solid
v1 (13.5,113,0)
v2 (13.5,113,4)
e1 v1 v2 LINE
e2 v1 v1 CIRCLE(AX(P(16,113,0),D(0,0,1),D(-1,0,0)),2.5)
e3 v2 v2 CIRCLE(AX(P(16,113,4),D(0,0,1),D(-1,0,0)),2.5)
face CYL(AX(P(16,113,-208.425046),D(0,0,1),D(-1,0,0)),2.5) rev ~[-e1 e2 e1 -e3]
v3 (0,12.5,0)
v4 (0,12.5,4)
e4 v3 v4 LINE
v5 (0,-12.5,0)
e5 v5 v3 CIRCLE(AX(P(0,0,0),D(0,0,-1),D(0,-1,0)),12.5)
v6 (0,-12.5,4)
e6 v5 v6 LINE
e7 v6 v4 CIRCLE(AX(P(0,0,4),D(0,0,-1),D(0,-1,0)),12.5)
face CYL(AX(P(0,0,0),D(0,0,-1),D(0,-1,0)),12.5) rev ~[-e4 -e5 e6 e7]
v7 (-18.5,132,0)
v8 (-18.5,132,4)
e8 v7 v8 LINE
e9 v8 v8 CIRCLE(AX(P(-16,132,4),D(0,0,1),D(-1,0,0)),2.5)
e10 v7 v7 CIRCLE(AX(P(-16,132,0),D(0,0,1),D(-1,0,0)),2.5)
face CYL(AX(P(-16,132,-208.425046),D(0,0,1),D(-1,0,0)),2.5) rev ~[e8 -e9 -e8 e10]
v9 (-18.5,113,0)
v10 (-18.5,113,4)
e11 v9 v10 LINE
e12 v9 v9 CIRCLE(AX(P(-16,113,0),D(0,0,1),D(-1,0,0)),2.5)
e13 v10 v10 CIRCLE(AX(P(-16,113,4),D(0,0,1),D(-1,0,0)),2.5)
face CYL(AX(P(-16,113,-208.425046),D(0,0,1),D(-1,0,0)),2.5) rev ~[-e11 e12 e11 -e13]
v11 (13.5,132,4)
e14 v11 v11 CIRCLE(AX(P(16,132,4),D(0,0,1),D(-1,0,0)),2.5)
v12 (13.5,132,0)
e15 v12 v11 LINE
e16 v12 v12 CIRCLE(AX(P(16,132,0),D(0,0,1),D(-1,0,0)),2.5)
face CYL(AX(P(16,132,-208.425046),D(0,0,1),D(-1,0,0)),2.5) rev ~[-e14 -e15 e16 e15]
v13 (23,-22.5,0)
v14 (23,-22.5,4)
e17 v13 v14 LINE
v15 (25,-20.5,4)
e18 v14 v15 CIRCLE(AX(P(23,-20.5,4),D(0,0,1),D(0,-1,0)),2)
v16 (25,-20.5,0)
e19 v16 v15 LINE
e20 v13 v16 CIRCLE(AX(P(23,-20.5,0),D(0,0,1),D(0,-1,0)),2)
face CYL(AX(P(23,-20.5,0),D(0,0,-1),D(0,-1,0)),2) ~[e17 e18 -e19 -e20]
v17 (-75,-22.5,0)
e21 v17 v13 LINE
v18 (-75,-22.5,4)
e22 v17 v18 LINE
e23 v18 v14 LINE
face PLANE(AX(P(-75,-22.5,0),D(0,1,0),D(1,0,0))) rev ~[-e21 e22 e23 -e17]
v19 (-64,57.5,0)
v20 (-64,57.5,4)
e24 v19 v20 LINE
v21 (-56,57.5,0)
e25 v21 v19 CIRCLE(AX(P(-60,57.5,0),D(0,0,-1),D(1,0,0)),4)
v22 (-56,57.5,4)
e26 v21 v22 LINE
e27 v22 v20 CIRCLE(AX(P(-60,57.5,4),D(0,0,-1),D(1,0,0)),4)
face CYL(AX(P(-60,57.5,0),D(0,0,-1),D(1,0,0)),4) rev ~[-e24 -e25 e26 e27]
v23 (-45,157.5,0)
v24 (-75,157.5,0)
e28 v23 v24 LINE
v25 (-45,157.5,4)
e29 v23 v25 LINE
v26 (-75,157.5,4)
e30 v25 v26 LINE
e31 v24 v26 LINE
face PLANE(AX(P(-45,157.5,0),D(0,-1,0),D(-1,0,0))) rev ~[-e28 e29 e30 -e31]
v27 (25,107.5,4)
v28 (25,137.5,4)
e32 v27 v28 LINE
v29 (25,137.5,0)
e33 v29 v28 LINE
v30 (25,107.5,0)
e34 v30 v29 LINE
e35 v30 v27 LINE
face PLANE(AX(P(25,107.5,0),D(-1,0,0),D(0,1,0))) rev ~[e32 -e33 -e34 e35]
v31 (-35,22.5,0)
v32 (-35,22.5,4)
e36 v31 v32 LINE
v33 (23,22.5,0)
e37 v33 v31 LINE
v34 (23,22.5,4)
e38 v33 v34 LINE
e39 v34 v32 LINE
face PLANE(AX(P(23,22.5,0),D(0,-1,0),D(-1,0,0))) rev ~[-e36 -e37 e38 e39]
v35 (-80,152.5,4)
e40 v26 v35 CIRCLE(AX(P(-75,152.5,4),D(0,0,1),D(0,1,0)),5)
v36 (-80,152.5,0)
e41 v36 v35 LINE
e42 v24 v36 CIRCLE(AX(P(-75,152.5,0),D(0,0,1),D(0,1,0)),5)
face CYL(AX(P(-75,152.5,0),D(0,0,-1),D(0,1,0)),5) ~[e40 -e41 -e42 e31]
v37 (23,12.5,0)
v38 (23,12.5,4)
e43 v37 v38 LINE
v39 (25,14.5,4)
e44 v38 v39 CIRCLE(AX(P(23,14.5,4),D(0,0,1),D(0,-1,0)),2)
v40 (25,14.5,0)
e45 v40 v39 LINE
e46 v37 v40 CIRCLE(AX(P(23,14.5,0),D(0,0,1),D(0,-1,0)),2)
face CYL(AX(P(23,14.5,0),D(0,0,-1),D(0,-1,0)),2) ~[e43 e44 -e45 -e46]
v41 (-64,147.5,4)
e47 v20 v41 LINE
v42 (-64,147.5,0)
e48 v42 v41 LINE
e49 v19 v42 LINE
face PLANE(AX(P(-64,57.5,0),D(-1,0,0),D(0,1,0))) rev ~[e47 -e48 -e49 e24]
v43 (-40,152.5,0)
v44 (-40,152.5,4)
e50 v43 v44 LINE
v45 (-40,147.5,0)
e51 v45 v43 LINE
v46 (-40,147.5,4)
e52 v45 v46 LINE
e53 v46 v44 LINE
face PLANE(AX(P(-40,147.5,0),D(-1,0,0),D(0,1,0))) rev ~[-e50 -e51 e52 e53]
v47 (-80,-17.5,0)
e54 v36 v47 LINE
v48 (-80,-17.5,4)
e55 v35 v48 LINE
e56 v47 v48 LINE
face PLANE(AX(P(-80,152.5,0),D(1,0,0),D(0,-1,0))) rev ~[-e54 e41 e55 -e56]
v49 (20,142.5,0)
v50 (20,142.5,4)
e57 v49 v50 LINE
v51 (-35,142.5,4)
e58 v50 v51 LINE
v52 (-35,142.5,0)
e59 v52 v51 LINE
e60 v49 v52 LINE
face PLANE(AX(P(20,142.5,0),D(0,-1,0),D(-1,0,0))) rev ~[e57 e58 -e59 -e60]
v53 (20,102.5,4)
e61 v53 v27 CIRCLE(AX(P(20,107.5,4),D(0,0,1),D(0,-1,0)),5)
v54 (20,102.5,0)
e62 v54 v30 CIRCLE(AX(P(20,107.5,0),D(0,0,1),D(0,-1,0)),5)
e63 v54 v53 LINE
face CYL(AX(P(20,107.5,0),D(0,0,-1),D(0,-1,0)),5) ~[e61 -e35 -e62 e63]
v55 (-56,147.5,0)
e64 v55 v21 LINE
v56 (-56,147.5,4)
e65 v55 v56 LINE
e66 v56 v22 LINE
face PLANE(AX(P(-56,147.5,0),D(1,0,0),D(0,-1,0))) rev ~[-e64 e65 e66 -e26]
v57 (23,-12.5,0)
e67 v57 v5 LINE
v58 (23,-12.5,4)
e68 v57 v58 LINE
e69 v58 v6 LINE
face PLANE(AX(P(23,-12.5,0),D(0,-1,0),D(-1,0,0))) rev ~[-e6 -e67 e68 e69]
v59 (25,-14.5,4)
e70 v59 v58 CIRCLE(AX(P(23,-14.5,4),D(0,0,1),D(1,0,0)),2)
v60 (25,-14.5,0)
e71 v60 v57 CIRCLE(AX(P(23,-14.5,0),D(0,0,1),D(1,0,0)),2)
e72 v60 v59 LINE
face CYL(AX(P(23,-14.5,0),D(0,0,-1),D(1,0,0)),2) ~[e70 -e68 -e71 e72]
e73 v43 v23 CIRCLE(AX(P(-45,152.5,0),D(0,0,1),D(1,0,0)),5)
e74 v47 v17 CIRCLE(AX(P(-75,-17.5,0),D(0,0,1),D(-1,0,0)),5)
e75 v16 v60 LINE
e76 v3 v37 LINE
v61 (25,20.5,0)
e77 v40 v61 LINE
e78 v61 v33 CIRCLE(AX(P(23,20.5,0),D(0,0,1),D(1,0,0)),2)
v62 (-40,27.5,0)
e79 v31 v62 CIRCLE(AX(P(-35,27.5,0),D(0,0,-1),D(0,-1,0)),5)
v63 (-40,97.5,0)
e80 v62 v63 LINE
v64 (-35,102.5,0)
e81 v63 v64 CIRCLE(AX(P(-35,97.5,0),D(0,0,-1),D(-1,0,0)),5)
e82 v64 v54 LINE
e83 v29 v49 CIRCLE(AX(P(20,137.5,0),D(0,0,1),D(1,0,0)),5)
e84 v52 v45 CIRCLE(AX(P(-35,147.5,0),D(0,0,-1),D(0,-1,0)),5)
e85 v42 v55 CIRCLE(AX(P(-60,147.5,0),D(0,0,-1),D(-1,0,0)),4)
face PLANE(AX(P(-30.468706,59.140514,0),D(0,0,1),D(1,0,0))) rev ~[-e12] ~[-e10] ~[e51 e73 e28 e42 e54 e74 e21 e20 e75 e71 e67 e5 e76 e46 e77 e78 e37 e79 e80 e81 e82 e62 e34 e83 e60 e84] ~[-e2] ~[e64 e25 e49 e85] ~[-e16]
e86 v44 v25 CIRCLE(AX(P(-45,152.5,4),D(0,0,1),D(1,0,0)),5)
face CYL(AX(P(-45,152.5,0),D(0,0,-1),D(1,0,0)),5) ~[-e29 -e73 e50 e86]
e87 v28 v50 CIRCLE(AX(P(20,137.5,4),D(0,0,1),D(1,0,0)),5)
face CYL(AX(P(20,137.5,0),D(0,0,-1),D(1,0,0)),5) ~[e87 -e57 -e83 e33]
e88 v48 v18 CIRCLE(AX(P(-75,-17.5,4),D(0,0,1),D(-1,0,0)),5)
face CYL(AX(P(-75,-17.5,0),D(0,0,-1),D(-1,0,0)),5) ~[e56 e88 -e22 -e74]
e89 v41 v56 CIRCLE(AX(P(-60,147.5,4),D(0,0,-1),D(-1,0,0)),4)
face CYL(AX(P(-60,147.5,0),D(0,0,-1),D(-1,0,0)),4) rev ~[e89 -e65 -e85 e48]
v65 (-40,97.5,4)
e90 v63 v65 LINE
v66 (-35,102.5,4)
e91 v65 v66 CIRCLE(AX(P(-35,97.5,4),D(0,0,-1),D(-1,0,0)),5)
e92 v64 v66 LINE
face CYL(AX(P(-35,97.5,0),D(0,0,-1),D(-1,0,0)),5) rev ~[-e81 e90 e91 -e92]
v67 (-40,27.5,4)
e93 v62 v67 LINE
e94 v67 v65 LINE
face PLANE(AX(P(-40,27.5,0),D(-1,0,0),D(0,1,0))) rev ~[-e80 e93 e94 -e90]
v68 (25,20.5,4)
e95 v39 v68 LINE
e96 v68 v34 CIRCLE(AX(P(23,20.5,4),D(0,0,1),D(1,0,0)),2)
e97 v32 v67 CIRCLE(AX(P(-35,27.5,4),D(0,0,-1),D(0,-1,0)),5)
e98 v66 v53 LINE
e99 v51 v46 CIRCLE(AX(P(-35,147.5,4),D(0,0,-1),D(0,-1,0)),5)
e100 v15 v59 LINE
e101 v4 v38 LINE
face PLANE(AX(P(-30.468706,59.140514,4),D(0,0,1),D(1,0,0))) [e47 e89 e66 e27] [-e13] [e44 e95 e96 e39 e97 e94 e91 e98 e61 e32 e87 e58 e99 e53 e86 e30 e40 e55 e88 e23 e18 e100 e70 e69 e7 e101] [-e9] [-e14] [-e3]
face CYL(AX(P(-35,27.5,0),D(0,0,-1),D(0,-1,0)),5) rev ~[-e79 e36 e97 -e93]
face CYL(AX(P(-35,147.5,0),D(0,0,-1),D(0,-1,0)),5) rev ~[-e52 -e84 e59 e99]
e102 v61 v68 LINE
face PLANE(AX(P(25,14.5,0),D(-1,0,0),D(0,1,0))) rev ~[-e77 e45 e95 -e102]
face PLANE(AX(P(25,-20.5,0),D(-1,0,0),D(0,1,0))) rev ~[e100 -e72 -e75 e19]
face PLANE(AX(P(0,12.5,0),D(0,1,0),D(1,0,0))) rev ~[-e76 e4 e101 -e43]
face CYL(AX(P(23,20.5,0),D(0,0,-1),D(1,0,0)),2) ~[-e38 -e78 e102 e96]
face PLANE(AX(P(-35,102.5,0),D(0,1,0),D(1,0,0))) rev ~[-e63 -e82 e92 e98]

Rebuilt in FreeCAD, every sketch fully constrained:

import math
import FreeCAD as App
import Part
import Sketcher
from FreeCAD import Vector
Q = App.Units.Quantity

doc = App.newDocument("Part")
params = doc.addObject("Spreadsheet::Sheet", "Params")
for row, (alias, value) in enumerate([
    ("sketch1_radius", "2 mm"),
    ("sketch1_radius2", "5 mm"),
    ("sketch1_radius3", "4 mm"),
    ("sketch1_radius4", "12.5 mm"),
    ("sketch1_width", "23 mm"),
    ("pad1_length", "4 mm"),
    ("sketch2_diameter", "5 mm"),
    ("hole_diameter", "5 mm"),
], start=1):
    params.set(f"A{row}", alias)
    params.set(f"B{row}", "=" + value)
    params.setAlias(f"B{row}", alias)

body = doc.addObject("PartDesign::Body", "Body")

# Sketch on XY plane
sketch1 = body.newObject("Sketcher::SketchObject", "Sketch")
sketch1.AttachmentSupport = (doc.getObject("XY_Plane"), [""])
sketch1.MapMode = "FlatFace"
sketch1.addGeometry(Part.ArcOfCircle(Part.Circle(Vector(0, 0, 0), Vector(0, 0, 1), 12.5), math.radians(90), math.radians(270)), False)
sketch1.addGeometry(Part.LineSegment(Vector(0, 12.5, 0), Vector(23, 12.5, 0)), False)
sketch1.addGeometry(Part.ArcOfCircle(Part.Circle(Vector(23, 14.5, 0), Vector(0, 0, 1), 2), math.radians(-90), math.radians(0)), False)
sketch1.addGeometry(Part.LineSegment(Vector(25, 14.5, 0), Vector(25, 20.5, 0)), False)
sketch1.addGeometry(Part.ArcOfCircle(Part.Circle(Vector(23, 20.5, 0), Vector(0, 0, 1), 2), math.radians(0), math.radians(90)), False)
sketch1.addGeometry(Part.LineSegment(Vector(23, 22.5, 0), Vector(-35, 22.5, 0)), False)
sketch1.addGeometry(Part.ArcOfCircle(Part.Circle(Vector(-35, 27.5, 0), Vector(0, 0, 1), 5), math.radians(180), math.radians(270)), False)
sketch1.addGeometry(Part.LineSegment(Vector(-40, 27.5, 0), Vector(-40, 97.5, 0)), False)
sketch1.addGeometry(Part.ArcOfCircle(Part.Circle(Vector(-35, 97.5, 0), Vector(0, 0, 1), 5), math.radians(90), math.radians(180)), False)
sketch1.addGeometry(Part.LineSegment(Vector(-35, 102.5, 0), Vector(20, 102.5, 0)), False)
sketch1.addGeometry(Part.ArcOfCircle(Part.Circle(Vector(20, 107.5, 0), Vector(0, 0, 1), 5), math.radians(-90), math.radians(0)), False)
sketch1.addGeometry(Part.LineSegment(Vector(25, 107.5, 0), Vector(25, 137.5, 0)), False)
sketch1.addGeometry(Part.ArcOfCircle(Part.Circle(Vector(20, 137.5, 0), Vector(0, 0, 1), 5), math.radians(0), math.radians(90)), False)
sketch1.addGeometry(Part.LineSegment(Vector(20, 142.5, 0), Vector(-35, 142.5, 0)), False)
sketch1.addGeometry(Part.ArcOfCircle(Part.Circle(Vector(-35, 147.5, 0), Vector(0, 0, 1), 5), math.radians(180), math.radians(270)), False)
sketch1.addGeometry(Part.LineSegment(Vector(-40, 147.5, 0), Vector(-40, 152.5, 0)), False)
sketch1.addGeometry(Part.ArcOfCircle(Part.Circle(Vector(-45, 152.5, 0), Vector(0, 0, 1), 5), math.radians(0), math.radians(90)), False)
sketch1.addGeometry(Part.LineSegment(Vector(-45, 157.5, 0), Vector(-75, 157.5, 0)), False)
sketch1.addGeometry(Part.ArcOfCircle(Part.Circle(Vector(-75, 152.5, 0), Vector(0, 0, 1), 5), math.radians(90), math.radians(180)), False)
sketch1.addGeometry(Part.LineSegment(Vector(-80, 152.5, 0), Vector(-80, -17.5, 0)), False)
sketch1.addGeometry(Part.ArcOfCircle(Part.Circle(Vector(-75, -17.5, 0), Vector(0, 0, 1), 5), math.radians(180), math.radians(270)), False)
sketch1.addGeometry(Part.LineSegment(Vector(-75, -22.5, 0), Vector(23, -22.5, 0)), False)
sketch1.addGeometry(Part.ArcOfCircle(Part.Circle(Vector(23, -20.5, 0), Vector(0, 0, 1), 2), math.radians(-90), math.radians(0)), False)
sketch1.addGeometry(Part.LineSegment(Vector(25, -20.5, 0), Vector(25, -14.5, 0)), False)
sketch1.addGeometry(Part.ArcOfCircle(Part.Circle(Vector(23, -14.5, 0), Vector(0, 0, 1), 2), math.radians(0), math.radians(90)), False)
sketch1.addGeometry(Part.LineSegment(Vector(23, -12.5, 0), Vector(0, -12.5, 0)), False)
sketch1.addGeometry(Part.ArcOfCircle(Part.Circle(Vector(-60, 57.5, 0), Vector(0, 0, 1), 4), math.radians(180), math.radians(360)), False)
sketch1.addGeometry(Part.LineSegment(Vector(-64, 57.5, 0), Vector(-64, 147.5, 0)), False)
sketch1.addGeometry(Part.ArcOfCircle(Part.Circle(Vector(-60, 147.5, 0), Vector(0, 0, 1), 4), math.radians(0), math.radians(180)), False)
sketch1.addGeometry(Part.LineSegment(Vector(-56, 147.5, 0), Vector(-56, 57.5, 0)), False)
sketch1.addConstraint(Sketcher.Constraint("Tangent", 0, 1, 1, 1))
sketch1.addConstraint(Sketcher.Constraint("Tangent", 1, 2, 2, 1))
sketch1.addConstraint(Sketcher.Constraint("Tangent", 2, 2, 3, 1))
sketch1.addConstraint(Sketcher.Constraint("Tangent", 3, 2, 4, 1))
sketch1.addConstraint(Sketcher.Constraint("Tangent", 4, 2, 5, 1))
sketch1.addConstraint(Sketcher.Constraint("Tangent", 5, 2, 6, 2))
sketch1.addConstraint(Sketcher.Constraint("Tangent", 6, 1, 7, 1))
sketch1.addConstraint(Sketcher.Constraint("Tangent", 7, 2, 8, 2))
sketch1.addConstraint(Sketcher.Constraint("Tangent", 8, 1, 9, 1))
sketch1.addConstraint(Sketcher.Constraint("Tangent", 9, 2, 10, 1))
sketch1.addConstraint(Sketcher.Constraint("Tangent", 10, 2, 11, 1))
sketch1.addConstraint(Sketcher.Constraint("Tangent", 11, 2, 12, 1))
sketch1.addConstraint(Sketcher.Constraint("Tangent", 12, 2, 13, 1))
sketch1.addConstraint(Sketcher.Constraint("Tangent", 13, 2, 14, 2))
sketch1.addConstraint(Sketcher.Constraint("Tangent", 14, 1, 15, 1))
sketch1.addConstraint(Sketcher.Constraint("Tangent", 15, 2, 16, 1))
sketch1.addConstraint(Sketcher.Constraint("Tangent", 16, 2, 17, 1))
sketch1.addConstraint(Sketcher.Constraint("Tangent", 17, 2, 18, 1))
sketch1.addConstraint(Sketcher.Constraint("Tangent", 18, 2, 19, 1))
sketch1.addConstraint(Sketcher.Constraint("Tangent", 19, 2, 20, 1))
sketch1.addConstraint(Sketcher.Constraint("Tangent", 20, 2, 21, 1))
sketch1.addConstraint(Sketcher.Constraint("Tangent", 21, 2, 22, 1))
sketch1.addConstraint(Sketcher.Constraint("Tangent", 22, 2, 23, 1))
sketch1.addConstraint(Sketcher.Constraint("Tangent", 23, 2, 24, 1))
sketch1.addConstraint(Sketcher.Constraint("Tangent", 24, 2, 25, 1))
sketch1.addConstraint(Sketcher.Constraint("Tangent", 25, 2, 0, 2))
sketch1.addConstraint(Sketcher.Constraint("Tangent", 26, 1, 27, 1))
sketch1.addConstraint(Sketcher.Constraint("Tangent", 27, 2, 28, 2))
sketch1.addConstraint(Sketcher.Constraint("Tangent", 28, 1, 29, 1))
sketch1.addConstraint(Sketcher.Constraint("Tangent", 29, 2, 26, 2))
sketch1.addConstraint(Sketcher.Constraint("Horizontal", 1))
sketch1.addConstraint(Sketcher.Constraint("Vertical", 3))
sketch1.addConstraint(Sketcher.Constraint("Horizontal", 5))
sketch1.addConstraint(Sketcher.Constraint("Vertical", 7))
sketch1.addConstraint(Sketcher.Constraint("Horizontal", 9))
sketch1.addConstraint(Sketcher.Constraint("Vertical", 11))
sketch1.addConstraint(Sketcher.Constraint("Horizontal", 13))
sketch1.addConstraint(Sketcher.Constraint("Vertical", 15))
sketch1.addConstraint(Sketcher.Constraint("Horizontal", 17))
sketch1.addConstraint(Sketcher.Constraint("Vertical", 19))
sketch1.addConstraint(Sketcher.Constraint("Horizontal", 21))
sketch1.addConstraint(Sketcher.Constraint("Vertical", 23))
sketch1.addConstraint(Sketcher.Constraint("Horizontal", 25))
sketch1.addConstraint(Sketcher.Constraint("Vertical", 27))
sketch1.addConstraint(Sketcher.Constraint("Vertical", 29))
sketch1.addConstraint(Sketcher.Constraint("Coincident", 0, 3, -1, 1))
sketch1.addConstraint(Sketcher.Constraint("Equal", 2, 4))
sketch1.addConstraint(Sketcher.Constraint("Equal", 6, 8))
sketch1.addConstraint(Sketcher.Constraint("Equal", 8, 10))
sketch1.addConstraint(Sketcher.Constraint("Equal", 10, 12))
sketch1.addConstraint(Sketcher.Constraint("Equal", 12, 14))
sketch1.addConstraint(Sketcher.Constraint("Equal", 14, 16))
sketch1.addConstraint(Sketcher.Constraint("Equal", 16, 18))
sketch1.addConstraint(Sketcher.Constraint("Equal", 18, 20))
sketch1.addConstraint(Sketcher.Constraint("Equal", 4, 22))
sketch1.addConstraint(Sketcher.Constraint("Equal", 22, 24))
sketch1.addConstraint(Sketcher.Constraint("Symmetric", 4, 3, 22, 3, -1))
sketch1.addConstraint(Sketcher.Constraint("Horizontal", 14, 3, 28, 3))
sketch1.addConstraint(Sketcher.Constraint("Vertical", 8, 3, 14, 3))
sketch1.addConstraint(Sketcher.Constraint("Vertical", 3, 2, 10, 2))
sketch1.addConstraint(Sketcher.Constraint("Equal", 17, 11))
sketch1.addConstraint(Sketcher.Constraint("Radius", 2, Q("2 mm")))
sketch1.addConstraint(Sketcher.Constraint("Radius", 6, Q("5 mm")))
sketch1.addConstraint(Sketcher.Constraint("Radius", 26, Q("4 mm")))
sketch1.addConstraint(Sketcher.Constraint("Radius", 0, Q("12.5 mm")))
sketch1.addConstraint(Sketcher.Constraint("DistanceX", 1, 1, 1, 2, Q("23 mm")))
sketch1.addConstraint(Sketcher.Constraint("DistanceX", 5, 2, 5, 1, Q("58 mm")))
sketch1.addConstraint(Sketcher.Constraint("DistanceX", 17, 2, 17, 1, Q("30 mm")))
sketch1.addConstraint(Sketcher.Constraint("DistanceY", 3, 1, 3, 2, Q("6 mm")))
sketch1.addConstraint(Sketcher.Constraint("DistanceY", 7, 1, 7, 2, Q("70 mm")))
sketch1.addConstraint(Sketcher.Constraint("DistanceY", 15, 1, 15, 2, Q("5 mm")))
sketch1.addConstraint(Sketcher.Constraint("DistanceY", 27, 1, 27, 2, Q("90 mm")))
sketch1.addConstraint(Sketcher.Constraint("DistanceX", 26, 3, -1, 1, Q("60 mm")))
sketch1.setExpression("Constraints[61]", "Params.sketch1_radius")
sketch1.setExpression("Constraints[62]", "Params.sketch1_radius2")
sketch1.setExpression("Constraints[63]", "Params.sketch1_radius3")
sketch1.setExpression("Constraints[64]", "Params.sketch1_radius4")
sketch1.setExpression("Constraints[65]", "Params.sketch1_width")
pad1 = body.newObject("PartDesign::Pad", "Pad")
pad1.Profile = sketch1
pad1.setExpression("Length", "Params.pad1_length")

# Sketch on XY plane
sketch2 = body.newObject("Sketcher::SketchObject", "Sketch001")
sketch2.AttachmentSupport = (doc.getObject("XY_Plane"), [""])
sketch2.MapMode = "FlatFace"
sketch2.addGeometry(Part.Circle(Vector(-16, 132, 0), Vector(0, 0, 1), 2.5), False)
sketch2.addGeometry(Part.Circle(Vector(16, 132, 0), Vector(0, 0, 1), 2.5), False)
sketch2.addGeometry(Part.Circle(Vector(16, 113, 0), Vector(0, 0, 1), 2.5), False)
sketch2.addGeometry(Part.Circle(Vector(-16, 113, 0), Vector(0, 0, 1), 2.5), False)
sketch2.addConstraint(Sketcher.Constraint("Equal", 0, 1))
sketch2.addConstraint(Sketcher.Constraint("Equal", 1, 2))
sketch2.addConstraint(Sketcher.Constraint("Equal", 2, 3))
sketch2.addConstraint(Sketcher.Constraint("Symmetric", 0, 3, 1, 3, -2))
sketch2.addConstraint(Sketcher.Constraint("Symmetric", 2, 3, 3, 3, -2))
sketch2.addConstraint(Sketcher.Constraint("Vertical", 1, 3, 2, 3))
sketch2.addConstraint(Sketcher.Constraint("Diameter", 0, Q("5 mm")))
sketch2.addConstraint(Sketcher.Constraint("DistanceX", 0, 3, -1, 1, Q("16 mm")))
sketch2.addConstraint(Sketcher.Constraint("DistanceY", -1, 1, 0, 3, Q("132 mm")))
sketch2.addConstraint(Sketcher.Constraint("DistanceY", -1, 1, 2, 3, Q("113 mm")))
sketch2.setExpression("Constraints[6]", "Params.sketch2_diameter")
doc.recompute()
hole = body.newObject("PartDesign::Hole", "Hole")
hole.Profile = sketch2
hole.ThreadType = "None"
hole.setExpression("Diameter", "Params.hole_diameter")
hole.DepthType = "ThroughAll"
hole.Reversed = True

doc.recompute()
